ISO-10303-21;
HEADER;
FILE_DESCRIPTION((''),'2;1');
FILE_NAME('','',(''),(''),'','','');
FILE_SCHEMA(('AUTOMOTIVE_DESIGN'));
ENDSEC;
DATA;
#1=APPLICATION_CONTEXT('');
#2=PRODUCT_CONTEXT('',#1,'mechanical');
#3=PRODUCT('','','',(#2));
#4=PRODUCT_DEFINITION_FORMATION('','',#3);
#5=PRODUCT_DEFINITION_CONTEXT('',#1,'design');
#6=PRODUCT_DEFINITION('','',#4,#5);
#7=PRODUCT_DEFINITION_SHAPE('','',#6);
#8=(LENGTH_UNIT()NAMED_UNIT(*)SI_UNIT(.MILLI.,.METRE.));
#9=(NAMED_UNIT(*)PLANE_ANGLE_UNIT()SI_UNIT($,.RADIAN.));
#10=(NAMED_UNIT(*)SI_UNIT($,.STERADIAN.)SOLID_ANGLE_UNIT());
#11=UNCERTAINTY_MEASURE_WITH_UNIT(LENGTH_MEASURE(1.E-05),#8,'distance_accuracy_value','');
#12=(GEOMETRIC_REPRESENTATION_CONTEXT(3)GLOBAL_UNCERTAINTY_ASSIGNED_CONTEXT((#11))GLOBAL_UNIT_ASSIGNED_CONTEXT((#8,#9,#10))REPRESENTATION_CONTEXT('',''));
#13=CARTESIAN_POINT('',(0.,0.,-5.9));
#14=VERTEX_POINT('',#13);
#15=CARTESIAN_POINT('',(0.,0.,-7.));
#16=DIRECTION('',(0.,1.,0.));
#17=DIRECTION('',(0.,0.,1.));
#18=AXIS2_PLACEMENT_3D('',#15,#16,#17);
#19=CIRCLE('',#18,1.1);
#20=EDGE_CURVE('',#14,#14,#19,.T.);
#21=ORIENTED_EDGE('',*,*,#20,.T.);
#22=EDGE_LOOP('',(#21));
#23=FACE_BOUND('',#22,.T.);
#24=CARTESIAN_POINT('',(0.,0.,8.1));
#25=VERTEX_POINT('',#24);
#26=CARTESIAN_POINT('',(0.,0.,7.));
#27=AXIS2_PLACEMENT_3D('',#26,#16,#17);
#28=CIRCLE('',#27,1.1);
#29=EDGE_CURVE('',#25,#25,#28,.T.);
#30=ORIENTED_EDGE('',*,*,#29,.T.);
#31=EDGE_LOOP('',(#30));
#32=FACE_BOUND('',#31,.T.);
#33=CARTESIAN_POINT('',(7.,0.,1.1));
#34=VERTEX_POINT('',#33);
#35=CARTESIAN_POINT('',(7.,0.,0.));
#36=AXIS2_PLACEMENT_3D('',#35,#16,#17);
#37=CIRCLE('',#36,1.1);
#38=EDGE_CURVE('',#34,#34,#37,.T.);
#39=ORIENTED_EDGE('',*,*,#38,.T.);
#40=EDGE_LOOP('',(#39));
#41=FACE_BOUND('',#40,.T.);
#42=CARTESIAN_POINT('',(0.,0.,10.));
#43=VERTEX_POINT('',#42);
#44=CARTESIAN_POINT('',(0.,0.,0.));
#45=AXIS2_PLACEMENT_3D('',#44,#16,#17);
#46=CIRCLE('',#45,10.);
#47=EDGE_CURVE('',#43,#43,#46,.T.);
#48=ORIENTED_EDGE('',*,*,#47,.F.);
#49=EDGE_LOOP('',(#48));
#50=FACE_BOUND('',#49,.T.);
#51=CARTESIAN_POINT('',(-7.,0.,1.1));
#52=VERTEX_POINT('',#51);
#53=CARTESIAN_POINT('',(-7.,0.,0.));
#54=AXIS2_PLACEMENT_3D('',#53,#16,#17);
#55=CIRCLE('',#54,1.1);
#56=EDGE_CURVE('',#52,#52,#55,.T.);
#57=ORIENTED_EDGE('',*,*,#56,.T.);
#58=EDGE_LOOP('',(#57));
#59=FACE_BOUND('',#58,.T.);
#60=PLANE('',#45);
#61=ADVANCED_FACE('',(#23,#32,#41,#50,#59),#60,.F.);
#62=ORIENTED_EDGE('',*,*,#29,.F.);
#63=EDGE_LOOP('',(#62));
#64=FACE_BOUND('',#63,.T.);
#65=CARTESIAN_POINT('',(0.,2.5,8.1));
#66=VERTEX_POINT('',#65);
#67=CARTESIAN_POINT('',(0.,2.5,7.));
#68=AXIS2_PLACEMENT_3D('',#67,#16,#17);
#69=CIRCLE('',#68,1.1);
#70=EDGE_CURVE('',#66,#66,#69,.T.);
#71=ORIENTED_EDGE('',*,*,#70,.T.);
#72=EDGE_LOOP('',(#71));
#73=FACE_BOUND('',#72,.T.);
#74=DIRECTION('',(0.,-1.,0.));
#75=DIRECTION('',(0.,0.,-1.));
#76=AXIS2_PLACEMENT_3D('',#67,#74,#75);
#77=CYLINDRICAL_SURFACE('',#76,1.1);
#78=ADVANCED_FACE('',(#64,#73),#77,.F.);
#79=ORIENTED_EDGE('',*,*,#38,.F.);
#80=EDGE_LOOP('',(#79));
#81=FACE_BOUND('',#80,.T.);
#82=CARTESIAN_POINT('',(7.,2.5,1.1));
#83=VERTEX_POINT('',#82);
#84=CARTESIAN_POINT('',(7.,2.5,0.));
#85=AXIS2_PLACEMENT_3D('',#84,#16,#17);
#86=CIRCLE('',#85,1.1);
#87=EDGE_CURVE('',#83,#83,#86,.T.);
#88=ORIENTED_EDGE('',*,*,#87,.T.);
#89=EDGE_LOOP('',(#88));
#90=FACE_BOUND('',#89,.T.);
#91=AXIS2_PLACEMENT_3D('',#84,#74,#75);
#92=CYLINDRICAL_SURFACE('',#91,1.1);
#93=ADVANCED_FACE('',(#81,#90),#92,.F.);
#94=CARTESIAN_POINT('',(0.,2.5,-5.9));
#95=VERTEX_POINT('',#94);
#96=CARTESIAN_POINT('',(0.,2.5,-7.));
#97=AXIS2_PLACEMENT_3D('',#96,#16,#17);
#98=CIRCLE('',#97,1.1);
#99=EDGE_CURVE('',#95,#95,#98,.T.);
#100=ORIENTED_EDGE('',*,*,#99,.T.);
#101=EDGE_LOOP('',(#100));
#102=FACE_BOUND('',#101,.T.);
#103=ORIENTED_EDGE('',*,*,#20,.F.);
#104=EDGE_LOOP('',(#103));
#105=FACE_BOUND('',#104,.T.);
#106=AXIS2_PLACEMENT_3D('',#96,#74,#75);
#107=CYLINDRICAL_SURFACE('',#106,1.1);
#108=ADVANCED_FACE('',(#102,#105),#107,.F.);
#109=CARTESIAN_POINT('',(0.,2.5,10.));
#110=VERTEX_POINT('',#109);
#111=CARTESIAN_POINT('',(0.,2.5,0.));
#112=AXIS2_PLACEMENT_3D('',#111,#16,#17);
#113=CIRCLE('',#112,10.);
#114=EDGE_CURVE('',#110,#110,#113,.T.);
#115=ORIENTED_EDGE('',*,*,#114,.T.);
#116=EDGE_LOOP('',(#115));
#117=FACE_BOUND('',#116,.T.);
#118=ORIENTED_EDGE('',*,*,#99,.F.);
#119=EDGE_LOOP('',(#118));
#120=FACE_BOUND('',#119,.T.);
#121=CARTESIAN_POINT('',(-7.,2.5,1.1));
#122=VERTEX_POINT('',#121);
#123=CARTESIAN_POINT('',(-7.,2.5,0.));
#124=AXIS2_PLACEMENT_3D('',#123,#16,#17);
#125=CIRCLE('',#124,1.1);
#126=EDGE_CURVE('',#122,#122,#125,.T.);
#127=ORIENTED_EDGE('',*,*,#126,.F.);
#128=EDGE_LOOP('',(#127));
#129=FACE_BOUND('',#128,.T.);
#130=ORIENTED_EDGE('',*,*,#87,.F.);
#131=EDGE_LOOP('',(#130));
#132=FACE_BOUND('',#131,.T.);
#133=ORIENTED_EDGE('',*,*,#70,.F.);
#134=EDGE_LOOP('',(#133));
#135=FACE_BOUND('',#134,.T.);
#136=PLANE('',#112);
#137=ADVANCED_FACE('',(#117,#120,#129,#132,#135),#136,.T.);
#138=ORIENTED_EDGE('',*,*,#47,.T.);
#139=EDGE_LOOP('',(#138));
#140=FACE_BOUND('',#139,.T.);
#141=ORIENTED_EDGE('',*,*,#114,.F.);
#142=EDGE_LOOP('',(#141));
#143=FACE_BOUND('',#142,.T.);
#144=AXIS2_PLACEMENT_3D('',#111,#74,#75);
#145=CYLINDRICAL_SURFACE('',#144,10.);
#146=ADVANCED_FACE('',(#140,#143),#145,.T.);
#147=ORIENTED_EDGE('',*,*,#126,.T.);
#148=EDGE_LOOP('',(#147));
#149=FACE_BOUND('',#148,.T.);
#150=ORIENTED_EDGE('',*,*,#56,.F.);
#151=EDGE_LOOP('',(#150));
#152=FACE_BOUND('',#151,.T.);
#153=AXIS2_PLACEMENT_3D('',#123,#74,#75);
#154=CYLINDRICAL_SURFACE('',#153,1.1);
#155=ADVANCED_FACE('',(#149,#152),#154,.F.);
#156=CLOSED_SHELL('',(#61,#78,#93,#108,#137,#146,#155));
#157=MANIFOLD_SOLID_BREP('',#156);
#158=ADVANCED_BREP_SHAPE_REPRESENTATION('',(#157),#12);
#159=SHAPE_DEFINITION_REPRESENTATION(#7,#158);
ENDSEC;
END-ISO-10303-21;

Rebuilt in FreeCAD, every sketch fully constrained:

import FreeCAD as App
import Part
import Sketcher

V = App.Vector
Q = App.Units.Quantity

doc = App.newDocument("Part")
body = doc.addObject("PartDesign::Body", "Body")

# Sketch on XZ plane
sketch1 = body.newObject("Sketcher::SketchObject", "Sketch")
sketch1.AttachmentSupport = (doc.getObject("XZ_Plane"), [""])
sketch1.MapMode = "FlatFace"
sketch1.addGeometry([
    Part.Circle(V(0, 0, 0), V(0, 0, 1), 10),  # 0
    Part.Circle(V(0, -7, 0), V(0, 0, 1), 1.1),  # 1
    Part.Circle(V(-7, 0, 0), V(0, 0, 1), 1.1),  # 2
    Part.Circle(V(7, 0, 0), V(0, 0, 1), 1.1),  # 3
    Part.Circle(V(0, 7, 0), V(0, 0, 1), 1.1),  # 4
], False)
sketch1.addConstraint([
    Sketcher.Constraint("Coincident", 0, 3, -1, 1),
    Sketcher.Constraint("Equal", 1, 2),
    Sketcher.Constraint("Equal", 2, 3),
    Sketcher.Constraint("Equal", 3, 4),
    Sketcher.Constraint("Symmetric", 2, 3, 3, 3, -1, 1),
    Sketcher.Constraint("Symmetric", 1, 3, 4, 3, -1, 1),
    Sketcher.Constraint("PointOnObject", 1, 3, -2),
    Sketcher.Constraint("PointOnObject", 2, 3, -1),
    Sketcher.Constraint("Diameter", 0, Q("20 mm")),
    Sketcher.Constraint("Diameter", 1, Q("2.2 mm")),
    Sketcher.Constraint("DistanceY", 1, 3, -1, 1, Q("7 mm")),
    Sketcher.Constraint("DistanceX", 2, 3, -1, 1, Q("7 mm")),
])
pad1 = body.newObject("PartDesign::Pad", "Pad")
pad1.Profile = sketch1
pad1.Length = 2.5
pad1.Reversed = True

doc.recompute()
